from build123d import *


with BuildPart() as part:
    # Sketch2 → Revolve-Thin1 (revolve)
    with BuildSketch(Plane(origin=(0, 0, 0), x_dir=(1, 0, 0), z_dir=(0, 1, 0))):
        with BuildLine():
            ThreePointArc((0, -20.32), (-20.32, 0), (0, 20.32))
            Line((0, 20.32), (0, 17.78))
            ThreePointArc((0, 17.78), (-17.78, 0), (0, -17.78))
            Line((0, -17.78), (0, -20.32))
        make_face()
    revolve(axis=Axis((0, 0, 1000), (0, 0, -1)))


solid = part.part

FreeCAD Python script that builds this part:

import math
import FreeCAD as App
import Part
import Sketcher

V = App.Vector
Q = App.Units.Quantity

doc = App.newDocument("Part")
body = doc.addObject("PartDesign::Body", "Body")

sketch1 = body.newObject("Sketcher::SketchObject", "Sketch")
sketch1.AttachmentSupport = (doc.getObject("XZ_Plane"), [""])
sketch1.MapMode = "FlatFace"
sketch1.addGeometry([
    Part.ArcOfCircle(Part.Circle(V(0, 0, 0), V(0, 0, 1), 20.32), math.radians(90), math.radians(270)),
    Part.LineSegment(V(0, 20.32, 0), V(0, 17.78, 0)),
    Part.ArcOfCircle(Part.Circle(V(0, 0, 0), V(0, 0, 1), 17.78), math.radians(90), math.radians(270)),
    Part.LineSegment(V(0, -17.78, 0), V(0, -20.32, 0)),
], False)
sketch1.addConstraint([
    Sketcher.Constraint("Coincident", 0, 1, 1, 1),
    Sketcher.Constraint("Coincident", 1, 2, 2, 1),
    Sketcher.Constraint("Coincident", 2, 2, 3, 1),
    Sketcher.Constraint("Coincident", 3, 2, 0, 2),
    Sketcher.Constraint("Vertical", 1),
    Sketcher.Constraint("Vertical", 3),
    Sketcher.Constraint("Coincident", 0, 3, -1, 1),
    Sketcher.Constraint("Coincident", 2, 3, -1, 1),
    Sketcher.Constraint("PointOnObject", 0, 1, -2),
    Sketcher.Constraint("PointOnObject", 2, 2, -2),
    Sketcher.Constraint("Radius", 0, Q("0.8 in")),
    Sketcher.Constraint("Radius", 2, Q("0.7 in")),
])
revolution = body.newObject("PartDesign::Revolution", "Revolution")
revolution.Profile = sketch1
revolution.ReferenceAxis = (sketch1, ["V_Axis"])
revolution.Angle = 360

doc.recompute()
